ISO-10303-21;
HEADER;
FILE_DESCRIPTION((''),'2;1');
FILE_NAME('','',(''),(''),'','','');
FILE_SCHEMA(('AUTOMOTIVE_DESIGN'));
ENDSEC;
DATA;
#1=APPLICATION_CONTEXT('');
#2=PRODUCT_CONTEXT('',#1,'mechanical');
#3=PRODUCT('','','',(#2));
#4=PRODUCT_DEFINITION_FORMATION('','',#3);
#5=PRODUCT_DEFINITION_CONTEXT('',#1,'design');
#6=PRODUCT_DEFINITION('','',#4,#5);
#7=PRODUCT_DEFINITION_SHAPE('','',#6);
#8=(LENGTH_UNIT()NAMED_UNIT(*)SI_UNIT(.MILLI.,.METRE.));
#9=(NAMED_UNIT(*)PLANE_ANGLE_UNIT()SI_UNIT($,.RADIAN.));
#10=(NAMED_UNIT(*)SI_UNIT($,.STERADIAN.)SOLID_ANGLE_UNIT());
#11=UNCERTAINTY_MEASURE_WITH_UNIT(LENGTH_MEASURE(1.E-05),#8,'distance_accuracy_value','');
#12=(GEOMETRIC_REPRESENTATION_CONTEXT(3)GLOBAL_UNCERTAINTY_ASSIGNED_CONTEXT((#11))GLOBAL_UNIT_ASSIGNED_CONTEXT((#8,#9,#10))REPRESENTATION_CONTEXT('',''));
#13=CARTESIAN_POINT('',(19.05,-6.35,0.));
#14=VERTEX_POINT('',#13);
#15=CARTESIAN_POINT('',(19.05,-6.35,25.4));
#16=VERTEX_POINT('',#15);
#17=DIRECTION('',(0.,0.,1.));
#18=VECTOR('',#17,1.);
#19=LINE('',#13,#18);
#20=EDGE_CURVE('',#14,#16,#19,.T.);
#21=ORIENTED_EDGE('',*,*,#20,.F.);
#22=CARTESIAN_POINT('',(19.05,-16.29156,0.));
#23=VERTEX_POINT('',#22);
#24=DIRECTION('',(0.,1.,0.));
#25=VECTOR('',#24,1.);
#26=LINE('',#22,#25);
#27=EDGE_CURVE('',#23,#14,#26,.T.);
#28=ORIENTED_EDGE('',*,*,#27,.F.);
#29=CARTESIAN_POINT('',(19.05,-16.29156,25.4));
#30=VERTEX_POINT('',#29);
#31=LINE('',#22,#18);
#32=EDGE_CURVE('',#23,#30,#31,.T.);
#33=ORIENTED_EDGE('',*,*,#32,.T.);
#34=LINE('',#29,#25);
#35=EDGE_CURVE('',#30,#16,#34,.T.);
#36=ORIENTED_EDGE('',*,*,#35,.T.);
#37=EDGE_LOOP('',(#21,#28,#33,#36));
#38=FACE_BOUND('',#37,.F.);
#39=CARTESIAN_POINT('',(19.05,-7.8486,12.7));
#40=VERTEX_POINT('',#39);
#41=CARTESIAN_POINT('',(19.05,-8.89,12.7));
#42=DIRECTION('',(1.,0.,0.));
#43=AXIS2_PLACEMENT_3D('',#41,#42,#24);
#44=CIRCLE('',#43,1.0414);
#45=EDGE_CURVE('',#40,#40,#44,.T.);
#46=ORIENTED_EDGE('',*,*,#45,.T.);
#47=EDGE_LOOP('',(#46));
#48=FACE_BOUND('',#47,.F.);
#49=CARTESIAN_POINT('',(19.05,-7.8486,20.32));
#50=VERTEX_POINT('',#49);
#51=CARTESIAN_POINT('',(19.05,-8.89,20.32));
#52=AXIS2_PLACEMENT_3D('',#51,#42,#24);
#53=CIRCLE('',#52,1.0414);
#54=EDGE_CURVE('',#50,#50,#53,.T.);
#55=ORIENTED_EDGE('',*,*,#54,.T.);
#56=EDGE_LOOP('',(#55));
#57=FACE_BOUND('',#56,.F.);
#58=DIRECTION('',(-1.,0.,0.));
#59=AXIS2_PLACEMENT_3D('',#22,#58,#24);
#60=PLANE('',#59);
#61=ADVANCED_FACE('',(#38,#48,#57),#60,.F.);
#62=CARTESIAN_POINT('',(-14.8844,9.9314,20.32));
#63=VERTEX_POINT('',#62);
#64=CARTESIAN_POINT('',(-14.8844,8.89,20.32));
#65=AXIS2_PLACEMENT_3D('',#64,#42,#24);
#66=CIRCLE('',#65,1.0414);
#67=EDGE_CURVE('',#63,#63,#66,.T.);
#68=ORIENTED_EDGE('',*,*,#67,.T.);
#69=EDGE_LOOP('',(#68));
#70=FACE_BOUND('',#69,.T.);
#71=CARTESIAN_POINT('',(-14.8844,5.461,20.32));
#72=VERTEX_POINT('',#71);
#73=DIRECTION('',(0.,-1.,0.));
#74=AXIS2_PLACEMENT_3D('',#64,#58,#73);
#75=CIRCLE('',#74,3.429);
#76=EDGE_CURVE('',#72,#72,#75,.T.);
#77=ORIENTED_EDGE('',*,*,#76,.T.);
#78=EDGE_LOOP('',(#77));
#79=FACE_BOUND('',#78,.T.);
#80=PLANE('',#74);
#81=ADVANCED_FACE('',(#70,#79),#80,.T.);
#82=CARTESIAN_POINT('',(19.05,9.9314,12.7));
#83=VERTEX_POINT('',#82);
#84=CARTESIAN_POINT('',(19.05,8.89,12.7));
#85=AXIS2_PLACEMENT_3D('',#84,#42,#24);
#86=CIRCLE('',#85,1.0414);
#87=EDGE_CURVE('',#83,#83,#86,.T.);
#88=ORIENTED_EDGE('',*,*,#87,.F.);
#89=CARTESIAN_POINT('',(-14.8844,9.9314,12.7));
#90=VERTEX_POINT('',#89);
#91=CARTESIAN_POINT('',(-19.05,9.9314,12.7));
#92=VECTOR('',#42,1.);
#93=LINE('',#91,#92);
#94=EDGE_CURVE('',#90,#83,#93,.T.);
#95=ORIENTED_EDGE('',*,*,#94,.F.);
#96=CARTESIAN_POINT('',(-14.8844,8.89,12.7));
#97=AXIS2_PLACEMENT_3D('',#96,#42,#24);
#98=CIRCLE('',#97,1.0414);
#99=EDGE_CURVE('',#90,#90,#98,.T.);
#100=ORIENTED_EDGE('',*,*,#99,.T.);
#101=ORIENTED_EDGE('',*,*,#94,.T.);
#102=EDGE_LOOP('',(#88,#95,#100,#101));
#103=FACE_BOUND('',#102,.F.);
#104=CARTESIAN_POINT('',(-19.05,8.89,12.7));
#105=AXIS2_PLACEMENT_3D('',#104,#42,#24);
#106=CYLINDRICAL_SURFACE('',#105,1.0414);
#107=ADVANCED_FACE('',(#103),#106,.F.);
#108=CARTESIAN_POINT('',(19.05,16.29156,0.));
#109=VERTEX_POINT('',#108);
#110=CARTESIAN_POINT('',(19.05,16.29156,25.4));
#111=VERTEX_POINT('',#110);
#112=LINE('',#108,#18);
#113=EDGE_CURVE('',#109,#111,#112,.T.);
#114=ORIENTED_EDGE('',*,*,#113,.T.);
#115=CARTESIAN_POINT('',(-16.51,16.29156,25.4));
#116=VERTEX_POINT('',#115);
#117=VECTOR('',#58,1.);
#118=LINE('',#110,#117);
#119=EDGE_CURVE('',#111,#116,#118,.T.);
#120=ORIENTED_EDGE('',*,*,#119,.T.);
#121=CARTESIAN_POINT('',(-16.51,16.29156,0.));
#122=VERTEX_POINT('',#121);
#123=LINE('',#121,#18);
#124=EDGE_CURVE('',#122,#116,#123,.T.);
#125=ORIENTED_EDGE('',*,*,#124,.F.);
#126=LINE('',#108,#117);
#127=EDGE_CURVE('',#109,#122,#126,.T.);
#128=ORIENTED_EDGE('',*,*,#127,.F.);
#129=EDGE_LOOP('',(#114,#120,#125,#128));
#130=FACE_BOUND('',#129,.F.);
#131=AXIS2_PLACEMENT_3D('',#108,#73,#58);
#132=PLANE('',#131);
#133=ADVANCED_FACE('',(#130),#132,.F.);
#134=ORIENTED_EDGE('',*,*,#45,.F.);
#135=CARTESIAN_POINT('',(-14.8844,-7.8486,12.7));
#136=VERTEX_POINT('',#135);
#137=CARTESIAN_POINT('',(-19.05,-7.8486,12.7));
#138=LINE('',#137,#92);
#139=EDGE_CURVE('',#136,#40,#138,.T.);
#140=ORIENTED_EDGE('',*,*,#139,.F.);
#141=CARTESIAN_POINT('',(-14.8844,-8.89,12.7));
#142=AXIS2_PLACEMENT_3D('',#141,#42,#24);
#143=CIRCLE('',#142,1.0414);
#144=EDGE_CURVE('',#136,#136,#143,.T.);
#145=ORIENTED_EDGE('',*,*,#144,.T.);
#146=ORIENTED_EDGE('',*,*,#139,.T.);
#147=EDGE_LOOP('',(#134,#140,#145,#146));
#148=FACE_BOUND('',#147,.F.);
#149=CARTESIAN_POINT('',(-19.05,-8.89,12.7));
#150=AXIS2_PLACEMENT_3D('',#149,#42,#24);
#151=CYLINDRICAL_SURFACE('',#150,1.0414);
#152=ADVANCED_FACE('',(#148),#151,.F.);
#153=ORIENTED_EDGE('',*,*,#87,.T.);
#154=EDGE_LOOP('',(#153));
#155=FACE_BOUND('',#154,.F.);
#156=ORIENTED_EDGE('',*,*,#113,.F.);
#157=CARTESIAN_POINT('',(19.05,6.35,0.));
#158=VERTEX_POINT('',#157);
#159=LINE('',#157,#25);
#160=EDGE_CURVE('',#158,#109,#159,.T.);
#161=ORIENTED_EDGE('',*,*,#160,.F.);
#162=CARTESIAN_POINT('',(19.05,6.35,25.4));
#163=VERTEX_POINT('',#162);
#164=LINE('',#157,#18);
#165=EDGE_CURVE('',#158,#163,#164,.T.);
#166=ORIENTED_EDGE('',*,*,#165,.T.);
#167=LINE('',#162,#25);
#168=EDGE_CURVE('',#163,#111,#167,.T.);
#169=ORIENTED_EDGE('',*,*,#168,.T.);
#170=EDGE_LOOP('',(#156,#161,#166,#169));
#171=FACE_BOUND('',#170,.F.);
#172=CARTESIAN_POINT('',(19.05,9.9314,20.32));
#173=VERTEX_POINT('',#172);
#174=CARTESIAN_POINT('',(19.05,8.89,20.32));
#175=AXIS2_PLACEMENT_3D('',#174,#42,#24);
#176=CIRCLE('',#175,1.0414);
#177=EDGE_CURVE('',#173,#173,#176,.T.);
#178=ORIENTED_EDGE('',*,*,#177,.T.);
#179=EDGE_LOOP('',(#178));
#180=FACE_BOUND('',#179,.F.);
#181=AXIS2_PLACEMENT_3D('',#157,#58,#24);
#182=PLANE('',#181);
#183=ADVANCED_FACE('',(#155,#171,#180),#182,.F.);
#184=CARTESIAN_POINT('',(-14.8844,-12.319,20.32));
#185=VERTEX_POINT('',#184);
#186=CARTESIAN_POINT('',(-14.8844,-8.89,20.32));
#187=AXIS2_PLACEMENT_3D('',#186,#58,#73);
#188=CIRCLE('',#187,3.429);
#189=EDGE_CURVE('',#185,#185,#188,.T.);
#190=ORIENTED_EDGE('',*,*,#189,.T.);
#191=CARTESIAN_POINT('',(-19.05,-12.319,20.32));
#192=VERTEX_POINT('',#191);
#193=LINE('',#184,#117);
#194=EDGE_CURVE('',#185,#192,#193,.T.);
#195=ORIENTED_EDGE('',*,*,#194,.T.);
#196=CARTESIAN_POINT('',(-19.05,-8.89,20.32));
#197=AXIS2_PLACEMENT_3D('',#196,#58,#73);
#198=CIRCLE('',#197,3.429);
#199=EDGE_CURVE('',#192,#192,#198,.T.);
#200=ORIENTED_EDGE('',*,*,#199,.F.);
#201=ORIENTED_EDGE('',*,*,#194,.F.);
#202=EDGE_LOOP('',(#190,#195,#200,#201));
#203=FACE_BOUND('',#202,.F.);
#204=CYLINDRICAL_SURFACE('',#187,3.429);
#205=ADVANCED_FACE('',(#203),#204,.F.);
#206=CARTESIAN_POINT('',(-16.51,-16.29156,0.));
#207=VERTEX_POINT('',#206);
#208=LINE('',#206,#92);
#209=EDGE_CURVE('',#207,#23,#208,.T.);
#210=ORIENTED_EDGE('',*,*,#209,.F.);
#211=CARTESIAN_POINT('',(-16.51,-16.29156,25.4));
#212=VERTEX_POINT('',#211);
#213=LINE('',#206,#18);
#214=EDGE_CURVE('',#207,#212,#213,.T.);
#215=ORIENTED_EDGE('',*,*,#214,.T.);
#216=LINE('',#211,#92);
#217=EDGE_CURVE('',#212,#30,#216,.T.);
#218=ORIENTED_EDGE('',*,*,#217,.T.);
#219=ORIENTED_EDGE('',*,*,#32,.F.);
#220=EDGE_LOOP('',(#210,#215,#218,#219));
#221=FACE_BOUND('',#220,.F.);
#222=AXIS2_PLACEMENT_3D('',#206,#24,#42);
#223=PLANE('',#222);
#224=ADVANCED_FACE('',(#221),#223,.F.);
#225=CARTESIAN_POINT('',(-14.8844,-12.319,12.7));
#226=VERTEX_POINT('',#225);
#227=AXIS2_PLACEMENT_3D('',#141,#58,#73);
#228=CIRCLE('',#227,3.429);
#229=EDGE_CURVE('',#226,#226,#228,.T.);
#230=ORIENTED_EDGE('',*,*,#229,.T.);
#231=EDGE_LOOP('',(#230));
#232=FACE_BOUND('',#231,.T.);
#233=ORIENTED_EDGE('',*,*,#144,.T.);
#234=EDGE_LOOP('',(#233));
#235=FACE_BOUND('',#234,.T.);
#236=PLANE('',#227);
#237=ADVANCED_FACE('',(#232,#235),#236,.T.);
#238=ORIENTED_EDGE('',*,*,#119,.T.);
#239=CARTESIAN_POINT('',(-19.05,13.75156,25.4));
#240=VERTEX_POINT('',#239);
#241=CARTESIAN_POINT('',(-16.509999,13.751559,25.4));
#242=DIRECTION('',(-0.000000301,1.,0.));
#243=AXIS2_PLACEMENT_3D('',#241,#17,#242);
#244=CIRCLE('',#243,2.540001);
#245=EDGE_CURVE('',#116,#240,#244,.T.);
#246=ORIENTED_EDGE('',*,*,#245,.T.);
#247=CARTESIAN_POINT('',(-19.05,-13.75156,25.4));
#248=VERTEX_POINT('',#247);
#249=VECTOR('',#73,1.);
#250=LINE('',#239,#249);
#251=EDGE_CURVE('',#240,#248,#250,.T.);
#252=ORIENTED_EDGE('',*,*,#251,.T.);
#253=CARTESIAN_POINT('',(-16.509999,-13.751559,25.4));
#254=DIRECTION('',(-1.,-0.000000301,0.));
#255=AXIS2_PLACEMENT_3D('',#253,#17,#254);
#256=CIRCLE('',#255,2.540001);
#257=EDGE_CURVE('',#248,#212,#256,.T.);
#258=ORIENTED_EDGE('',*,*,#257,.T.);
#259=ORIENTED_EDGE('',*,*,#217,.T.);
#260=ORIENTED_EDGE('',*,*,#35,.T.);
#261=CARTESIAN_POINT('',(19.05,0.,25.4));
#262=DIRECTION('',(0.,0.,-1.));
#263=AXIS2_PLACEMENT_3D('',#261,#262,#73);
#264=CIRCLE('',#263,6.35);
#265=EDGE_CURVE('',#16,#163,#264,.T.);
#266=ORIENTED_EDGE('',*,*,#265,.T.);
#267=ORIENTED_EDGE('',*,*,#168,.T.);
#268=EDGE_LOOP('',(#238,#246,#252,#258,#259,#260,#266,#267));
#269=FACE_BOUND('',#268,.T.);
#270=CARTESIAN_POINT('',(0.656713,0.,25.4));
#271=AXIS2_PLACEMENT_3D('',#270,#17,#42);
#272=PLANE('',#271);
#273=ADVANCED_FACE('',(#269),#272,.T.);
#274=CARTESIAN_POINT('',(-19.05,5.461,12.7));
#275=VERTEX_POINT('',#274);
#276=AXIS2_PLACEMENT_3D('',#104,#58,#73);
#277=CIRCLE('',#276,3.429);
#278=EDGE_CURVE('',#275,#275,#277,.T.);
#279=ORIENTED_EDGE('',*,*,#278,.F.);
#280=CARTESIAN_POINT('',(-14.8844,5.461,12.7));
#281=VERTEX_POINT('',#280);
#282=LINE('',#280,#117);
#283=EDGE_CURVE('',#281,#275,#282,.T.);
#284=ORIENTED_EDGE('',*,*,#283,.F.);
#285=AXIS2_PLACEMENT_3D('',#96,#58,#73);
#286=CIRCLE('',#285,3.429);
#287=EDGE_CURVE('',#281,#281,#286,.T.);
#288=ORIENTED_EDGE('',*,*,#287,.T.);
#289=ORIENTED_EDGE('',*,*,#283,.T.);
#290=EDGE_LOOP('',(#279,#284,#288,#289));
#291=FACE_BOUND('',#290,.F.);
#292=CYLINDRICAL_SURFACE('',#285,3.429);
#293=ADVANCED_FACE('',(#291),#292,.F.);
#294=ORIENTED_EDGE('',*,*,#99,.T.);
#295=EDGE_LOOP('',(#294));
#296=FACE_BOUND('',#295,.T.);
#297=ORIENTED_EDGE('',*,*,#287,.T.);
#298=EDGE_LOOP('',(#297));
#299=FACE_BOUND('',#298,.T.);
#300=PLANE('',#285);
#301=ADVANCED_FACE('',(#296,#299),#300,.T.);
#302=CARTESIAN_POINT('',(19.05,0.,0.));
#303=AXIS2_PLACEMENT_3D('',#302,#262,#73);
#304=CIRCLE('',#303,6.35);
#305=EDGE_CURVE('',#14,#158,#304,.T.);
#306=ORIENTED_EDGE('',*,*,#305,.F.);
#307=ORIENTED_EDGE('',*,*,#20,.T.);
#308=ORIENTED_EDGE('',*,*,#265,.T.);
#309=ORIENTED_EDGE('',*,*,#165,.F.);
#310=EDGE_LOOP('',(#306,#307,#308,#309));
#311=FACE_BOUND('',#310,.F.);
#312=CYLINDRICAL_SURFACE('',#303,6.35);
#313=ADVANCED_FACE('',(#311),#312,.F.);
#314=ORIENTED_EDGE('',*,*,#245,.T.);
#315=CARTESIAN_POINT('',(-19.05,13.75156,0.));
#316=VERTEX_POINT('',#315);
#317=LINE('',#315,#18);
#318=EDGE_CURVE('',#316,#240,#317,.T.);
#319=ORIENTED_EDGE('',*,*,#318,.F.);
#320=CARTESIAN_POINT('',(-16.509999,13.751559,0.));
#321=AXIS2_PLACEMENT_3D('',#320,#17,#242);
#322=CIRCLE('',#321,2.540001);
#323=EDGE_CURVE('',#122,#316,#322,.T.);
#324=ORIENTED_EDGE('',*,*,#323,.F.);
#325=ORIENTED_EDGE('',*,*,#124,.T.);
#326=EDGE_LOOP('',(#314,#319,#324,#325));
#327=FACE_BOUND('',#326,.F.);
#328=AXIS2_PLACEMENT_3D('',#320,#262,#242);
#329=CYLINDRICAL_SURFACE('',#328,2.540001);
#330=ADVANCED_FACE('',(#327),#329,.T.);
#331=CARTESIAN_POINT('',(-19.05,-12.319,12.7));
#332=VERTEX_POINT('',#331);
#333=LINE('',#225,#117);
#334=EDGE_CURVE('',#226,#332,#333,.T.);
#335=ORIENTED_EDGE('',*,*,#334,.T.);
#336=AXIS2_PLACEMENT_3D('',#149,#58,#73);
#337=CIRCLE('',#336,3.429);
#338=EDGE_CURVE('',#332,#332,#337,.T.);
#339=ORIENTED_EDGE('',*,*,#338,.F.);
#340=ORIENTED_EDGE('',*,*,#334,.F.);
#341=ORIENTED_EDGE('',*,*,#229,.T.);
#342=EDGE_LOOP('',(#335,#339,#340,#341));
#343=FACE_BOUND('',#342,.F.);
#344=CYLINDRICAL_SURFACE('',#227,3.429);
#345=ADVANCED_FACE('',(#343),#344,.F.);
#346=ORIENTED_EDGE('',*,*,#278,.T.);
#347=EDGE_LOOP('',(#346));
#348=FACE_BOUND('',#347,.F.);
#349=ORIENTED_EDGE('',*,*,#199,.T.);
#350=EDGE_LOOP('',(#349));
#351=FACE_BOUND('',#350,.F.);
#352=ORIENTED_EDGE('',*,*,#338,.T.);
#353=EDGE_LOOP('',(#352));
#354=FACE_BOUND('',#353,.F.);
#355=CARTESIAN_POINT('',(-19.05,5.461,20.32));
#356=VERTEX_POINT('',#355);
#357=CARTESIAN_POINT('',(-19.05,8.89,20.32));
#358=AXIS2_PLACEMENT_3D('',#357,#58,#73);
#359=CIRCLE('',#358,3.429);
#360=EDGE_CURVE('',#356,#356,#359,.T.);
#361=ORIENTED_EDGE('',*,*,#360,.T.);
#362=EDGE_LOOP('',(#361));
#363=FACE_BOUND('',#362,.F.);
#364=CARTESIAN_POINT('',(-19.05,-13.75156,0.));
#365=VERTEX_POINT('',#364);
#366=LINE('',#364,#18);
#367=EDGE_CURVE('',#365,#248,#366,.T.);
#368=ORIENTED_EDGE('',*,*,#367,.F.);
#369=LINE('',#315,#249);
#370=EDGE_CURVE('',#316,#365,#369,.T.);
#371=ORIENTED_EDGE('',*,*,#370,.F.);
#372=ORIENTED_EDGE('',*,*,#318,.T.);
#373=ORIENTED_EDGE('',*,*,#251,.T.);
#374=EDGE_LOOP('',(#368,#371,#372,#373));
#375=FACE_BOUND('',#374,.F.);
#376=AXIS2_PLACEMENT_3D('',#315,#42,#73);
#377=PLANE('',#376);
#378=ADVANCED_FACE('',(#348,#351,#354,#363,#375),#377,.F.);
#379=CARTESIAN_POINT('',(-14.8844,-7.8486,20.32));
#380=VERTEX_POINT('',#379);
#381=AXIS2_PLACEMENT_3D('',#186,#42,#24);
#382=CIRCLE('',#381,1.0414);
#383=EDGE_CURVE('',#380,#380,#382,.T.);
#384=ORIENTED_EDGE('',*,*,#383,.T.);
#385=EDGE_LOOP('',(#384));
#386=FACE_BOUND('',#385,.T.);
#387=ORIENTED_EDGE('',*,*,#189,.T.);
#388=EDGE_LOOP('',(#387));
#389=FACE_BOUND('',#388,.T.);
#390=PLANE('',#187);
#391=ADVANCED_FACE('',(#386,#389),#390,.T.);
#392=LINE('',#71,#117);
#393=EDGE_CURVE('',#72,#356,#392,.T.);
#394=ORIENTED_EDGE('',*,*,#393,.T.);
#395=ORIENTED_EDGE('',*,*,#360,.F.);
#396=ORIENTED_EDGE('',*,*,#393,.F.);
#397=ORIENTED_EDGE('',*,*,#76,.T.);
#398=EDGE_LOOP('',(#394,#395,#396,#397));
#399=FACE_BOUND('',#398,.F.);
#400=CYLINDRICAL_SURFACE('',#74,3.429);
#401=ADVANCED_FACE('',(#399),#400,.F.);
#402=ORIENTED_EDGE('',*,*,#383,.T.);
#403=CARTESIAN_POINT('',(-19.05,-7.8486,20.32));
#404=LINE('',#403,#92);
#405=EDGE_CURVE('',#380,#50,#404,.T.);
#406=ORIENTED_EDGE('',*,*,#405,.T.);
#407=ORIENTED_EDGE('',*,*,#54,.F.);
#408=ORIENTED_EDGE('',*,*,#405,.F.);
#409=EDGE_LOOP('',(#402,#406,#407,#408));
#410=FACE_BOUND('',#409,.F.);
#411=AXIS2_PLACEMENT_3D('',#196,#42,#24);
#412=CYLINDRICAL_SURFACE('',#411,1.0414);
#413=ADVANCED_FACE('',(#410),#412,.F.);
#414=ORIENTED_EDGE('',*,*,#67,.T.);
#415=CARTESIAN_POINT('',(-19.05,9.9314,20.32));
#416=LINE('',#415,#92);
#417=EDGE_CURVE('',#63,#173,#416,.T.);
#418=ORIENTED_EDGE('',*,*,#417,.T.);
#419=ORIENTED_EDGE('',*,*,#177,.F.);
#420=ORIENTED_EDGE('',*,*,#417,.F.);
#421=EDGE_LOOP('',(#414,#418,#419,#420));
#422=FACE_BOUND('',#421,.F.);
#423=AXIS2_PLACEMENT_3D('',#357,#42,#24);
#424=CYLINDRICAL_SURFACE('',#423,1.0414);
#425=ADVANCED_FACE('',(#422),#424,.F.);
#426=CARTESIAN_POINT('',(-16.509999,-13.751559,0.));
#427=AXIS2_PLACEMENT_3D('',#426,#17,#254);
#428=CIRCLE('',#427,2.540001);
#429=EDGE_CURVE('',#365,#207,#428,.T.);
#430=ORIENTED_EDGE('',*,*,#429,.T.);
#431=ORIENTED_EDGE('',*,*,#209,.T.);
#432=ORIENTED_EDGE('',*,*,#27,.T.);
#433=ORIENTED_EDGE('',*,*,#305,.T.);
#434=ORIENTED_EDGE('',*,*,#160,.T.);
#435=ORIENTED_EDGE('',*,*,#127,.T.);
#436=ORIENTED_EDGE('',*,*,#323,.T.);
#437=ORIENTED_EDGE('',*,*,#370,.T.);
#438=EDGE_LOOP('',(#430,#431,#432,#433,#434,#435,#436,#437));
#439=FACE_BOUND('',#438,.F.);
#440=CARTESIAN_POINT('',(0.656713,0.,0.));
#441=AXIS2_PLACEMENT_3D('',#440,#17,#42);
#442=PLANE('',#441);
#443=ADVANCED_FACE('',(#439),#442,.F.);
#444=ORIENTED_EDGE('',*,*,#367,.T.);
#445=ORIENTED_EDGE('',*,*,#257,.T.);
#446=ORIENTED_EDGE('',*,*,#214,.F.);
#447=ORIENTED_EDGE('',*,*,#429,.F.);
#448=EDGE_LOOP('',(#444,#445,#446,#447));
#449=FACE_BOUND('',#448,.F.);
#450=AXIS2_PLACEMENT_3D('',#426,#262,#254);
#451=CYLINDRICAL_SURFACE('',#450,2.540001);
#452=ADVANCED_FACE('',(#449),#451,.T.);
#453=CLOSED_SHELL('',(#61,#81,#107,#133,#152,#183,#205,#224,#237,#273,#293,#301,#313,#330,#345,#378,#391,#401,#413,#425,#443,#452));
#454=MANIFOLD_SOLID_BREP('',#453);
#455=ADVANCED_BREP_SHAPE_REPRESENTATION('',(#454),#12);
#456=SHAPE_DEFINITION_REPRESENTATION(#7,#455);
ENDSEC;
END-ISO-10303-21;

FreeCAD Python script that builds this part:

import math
import FreeCAD as App
import Part
import Sketcher

V = App.Vector
Q = App.Units.Quantity

doc = App.newDocument("Part")
params = doc.addObject("Spreadsheet::Sheet", "Params")
for row, (alias, value) in enumerate([
    ("sketch1_radius", "0.1 in"),
    ("sketch1_radius2", "0.25 in"),
    ("sketch1_width", "1.4 in"),
    ("pad1_length", "1 in"),
    ("sketch2_diameter", "0.082 in"),
    ("hole_diameter", "0.082 in"),
    ("hole_cbore_diameter", "0.27 in"),
    ("hole_cbore_depth", "0.164 in"),
], start=1):
    params.set(f"A{row}", alias)
    params.set(f"B{row}", "=" + value)
    params.setAlias(f"B{row}", alias)

body = doc.addObject("PartDesign::Body", "Body")

sketch1 = doc.addObject("Sketcher::SketchObject", "Sketch")
body.addObject(sketch1)
sketch1.AttachmentSupport = (doc.XY_Plane, [""])
sketch1.MapMode = "FlatFace"
sketch1.addGeometry([
    Part.LineSegment(V(-16.5, -16.3, 0), V(19.1, -16.3, 0)),
    Part.LineSegment(V(19.1, -16.3, 0), V(19.1, -6.3, 0)),
    Part.ArcOfCircle(Part.Circle(V(19.1, 0, 0), V(0, 0, 1), 6.3), math.radians(90), math.radians(270)),
    Part.LineSegment(V(19.1, 6.3, 0), V(19.1, 16.3, 0)),
    Part.LineSegment(V(19.1, 16.3, 0), V(-16.5, 16.3, 0)),
    Part.ArcOfCircle(Part.Circle(V(-16.5, 13.8, 0), V(0, 0, 1), 2.5), math.radians(90), math.radians(180)),
    Part.LineSegment(V(-19.1, 13.8, 0), V(-19.1, -13.8, 0)),
    Part.ArcOfCircle(Part.Circle(V(-16.5, -13.8, 0), V(0, 0, 1), 2.5), math.radians(-180), math.radians(-90)),
], False)
sketch1.addConstraint([
    Sketcher.Constraint("Coincident", 0, 2, 1, 1),
    Sketcher.Constraint("Coincident", 1, 2, 2, 2),
    Sketcher.Constraint("Coincident", 2, 1, 3, 1),
    Sketcher.Constraint("Coincident", 3, 2, 4, 1),
    Sketcher.Constraint("Tangent", 4, 2, 5, 1),
    Sketcher.Constraint("Tangent", 5, 2, 6, 1),
    Sketcher.Constraint("Tangent", 6, 2, 7, 1),
    Sketcher.Constraint("Tangent", 7, 2, 0, 1),
    Sketcher.Constraint("Horizontal", 0),
    Sketcher.Constraint("Vertical", 1),
    Sketcher.Constraint("Vertical", 3),
    Sketcher.Constraint("Horizontal", 4),
    Sketcher.Constraint("Vertical", 6),
    Sketcher.Constraint("Equal", 5, 7),
    Sketcher.Constraint("Symmetric", 1, 2, 2, 1, -1),
    Sketcher.Constraint("Vertical", 2, 3, 0, 2),
    Sketcher.Constraint("Equal", 1, 3),
    Sketcher.Constraint("Radius", 5, Q("0.1 in")),
    Sketcher.Constraint("Radius", 2, Q("0.25 in")),
    Sketcher.Constraint("DistanceX", 0, 1, 0, 2, Q("1.4 in")),
    Sketcher.Constraint("DistanceX", -1, 1, 2, 3, Q("0.75 in")),
    Sketcher.Constraint("DistanceY", 1, 1, 1, 2, Q("0.3914 in")),
])
sketch1.setExpression("Constraints[17]", "Params.sketch1_radius")
sketch1.setExpression("Constraints[18]", "Params.sketch1_radius2")
sketch1.setExpression("Constraints[19]", "Params.sketch1_width")
pad1 = doc.addObject("PartDesign::Pad", "Pad")
body.addObject(pad1)
pad1.Profile = sketch1
pad1.setExpression("Length", "Params.pad1_length")

sketch2 = doc.addObject("Sketcher::SketchObject", "Sketch001")
body.addObject(sketch2)
sketch2.AttachmentSupport = (doc.YZ_Plane, [""])
sketch2.MapMode = "FlatFace"
sketch2.AttachmentOffset = App.Placement(V(0, 0, -0.75 * 25.4), App.Rotation())
sketch2.addGeometry([
    Part.Circle(V(8.9, 20.3, 0), V(0, 0, 1), 1),
    Part.Circle(V(8.9, 12.7, 0), V(0, 0, 1), 1),
    Part.Circle(V(-8.9, 20.3, 0), V(0, 0, 1), 1),
    Part.Circle(V(-8.9, 12.7, 0), V(0, 0, 1), 1),
], False)
sketch2.addConstraint([
    Sketcher.Constraint("Equal", 0, 1),
    Sketcher.Constraint("Equal", 1, 2),
    Sketcher.Constraint("Equal", 2, 3),
    Sketcher.Constraint("Symmetric", 0, 3, 2, 3, -2),
    Sketcher.Constraint("Symmetric", 1, 3, 3, 3, -2),
    Sketcher.Constraint("Vertical", 0, 3, 1, 3),
    Sketcher.Constraint("Diameter", 0, Q("0.082 in")),
    Sketcher.Constraint("DistanceY", -1, 1, 0, 3, Q("0.8 in")),
    Sketcher.Constraint("DistanceY", -1, 1, 1, 3, Q("0.5 in")),
    Sketcher.Constraint("DistanceX", 2, 3, 0, 3, Q("0.7 in")),
])
sketch2.setExpression("Constraints[6]", "Params.sketch2_diameter")
doc.recompute()
hole = doc.addObject("PartDesign::Hole", "Hole")
body.addObject(hole)
hole.Profile = sketch2
hole.ThreadType = "None"
hole.setExpression("Diameter", "Params.hole_diameter")
hole.DepthType = "ThroughAll"
hole.HoleCutType = "Counterbore"
hole.setExpression("HoleCutDiameter", "Params.hole_cbore_diameter")
hole.setExpression("HoleCutDepth", "Params.hole_cbore_depth")
hole.Reversed = True

doc.recompute()
